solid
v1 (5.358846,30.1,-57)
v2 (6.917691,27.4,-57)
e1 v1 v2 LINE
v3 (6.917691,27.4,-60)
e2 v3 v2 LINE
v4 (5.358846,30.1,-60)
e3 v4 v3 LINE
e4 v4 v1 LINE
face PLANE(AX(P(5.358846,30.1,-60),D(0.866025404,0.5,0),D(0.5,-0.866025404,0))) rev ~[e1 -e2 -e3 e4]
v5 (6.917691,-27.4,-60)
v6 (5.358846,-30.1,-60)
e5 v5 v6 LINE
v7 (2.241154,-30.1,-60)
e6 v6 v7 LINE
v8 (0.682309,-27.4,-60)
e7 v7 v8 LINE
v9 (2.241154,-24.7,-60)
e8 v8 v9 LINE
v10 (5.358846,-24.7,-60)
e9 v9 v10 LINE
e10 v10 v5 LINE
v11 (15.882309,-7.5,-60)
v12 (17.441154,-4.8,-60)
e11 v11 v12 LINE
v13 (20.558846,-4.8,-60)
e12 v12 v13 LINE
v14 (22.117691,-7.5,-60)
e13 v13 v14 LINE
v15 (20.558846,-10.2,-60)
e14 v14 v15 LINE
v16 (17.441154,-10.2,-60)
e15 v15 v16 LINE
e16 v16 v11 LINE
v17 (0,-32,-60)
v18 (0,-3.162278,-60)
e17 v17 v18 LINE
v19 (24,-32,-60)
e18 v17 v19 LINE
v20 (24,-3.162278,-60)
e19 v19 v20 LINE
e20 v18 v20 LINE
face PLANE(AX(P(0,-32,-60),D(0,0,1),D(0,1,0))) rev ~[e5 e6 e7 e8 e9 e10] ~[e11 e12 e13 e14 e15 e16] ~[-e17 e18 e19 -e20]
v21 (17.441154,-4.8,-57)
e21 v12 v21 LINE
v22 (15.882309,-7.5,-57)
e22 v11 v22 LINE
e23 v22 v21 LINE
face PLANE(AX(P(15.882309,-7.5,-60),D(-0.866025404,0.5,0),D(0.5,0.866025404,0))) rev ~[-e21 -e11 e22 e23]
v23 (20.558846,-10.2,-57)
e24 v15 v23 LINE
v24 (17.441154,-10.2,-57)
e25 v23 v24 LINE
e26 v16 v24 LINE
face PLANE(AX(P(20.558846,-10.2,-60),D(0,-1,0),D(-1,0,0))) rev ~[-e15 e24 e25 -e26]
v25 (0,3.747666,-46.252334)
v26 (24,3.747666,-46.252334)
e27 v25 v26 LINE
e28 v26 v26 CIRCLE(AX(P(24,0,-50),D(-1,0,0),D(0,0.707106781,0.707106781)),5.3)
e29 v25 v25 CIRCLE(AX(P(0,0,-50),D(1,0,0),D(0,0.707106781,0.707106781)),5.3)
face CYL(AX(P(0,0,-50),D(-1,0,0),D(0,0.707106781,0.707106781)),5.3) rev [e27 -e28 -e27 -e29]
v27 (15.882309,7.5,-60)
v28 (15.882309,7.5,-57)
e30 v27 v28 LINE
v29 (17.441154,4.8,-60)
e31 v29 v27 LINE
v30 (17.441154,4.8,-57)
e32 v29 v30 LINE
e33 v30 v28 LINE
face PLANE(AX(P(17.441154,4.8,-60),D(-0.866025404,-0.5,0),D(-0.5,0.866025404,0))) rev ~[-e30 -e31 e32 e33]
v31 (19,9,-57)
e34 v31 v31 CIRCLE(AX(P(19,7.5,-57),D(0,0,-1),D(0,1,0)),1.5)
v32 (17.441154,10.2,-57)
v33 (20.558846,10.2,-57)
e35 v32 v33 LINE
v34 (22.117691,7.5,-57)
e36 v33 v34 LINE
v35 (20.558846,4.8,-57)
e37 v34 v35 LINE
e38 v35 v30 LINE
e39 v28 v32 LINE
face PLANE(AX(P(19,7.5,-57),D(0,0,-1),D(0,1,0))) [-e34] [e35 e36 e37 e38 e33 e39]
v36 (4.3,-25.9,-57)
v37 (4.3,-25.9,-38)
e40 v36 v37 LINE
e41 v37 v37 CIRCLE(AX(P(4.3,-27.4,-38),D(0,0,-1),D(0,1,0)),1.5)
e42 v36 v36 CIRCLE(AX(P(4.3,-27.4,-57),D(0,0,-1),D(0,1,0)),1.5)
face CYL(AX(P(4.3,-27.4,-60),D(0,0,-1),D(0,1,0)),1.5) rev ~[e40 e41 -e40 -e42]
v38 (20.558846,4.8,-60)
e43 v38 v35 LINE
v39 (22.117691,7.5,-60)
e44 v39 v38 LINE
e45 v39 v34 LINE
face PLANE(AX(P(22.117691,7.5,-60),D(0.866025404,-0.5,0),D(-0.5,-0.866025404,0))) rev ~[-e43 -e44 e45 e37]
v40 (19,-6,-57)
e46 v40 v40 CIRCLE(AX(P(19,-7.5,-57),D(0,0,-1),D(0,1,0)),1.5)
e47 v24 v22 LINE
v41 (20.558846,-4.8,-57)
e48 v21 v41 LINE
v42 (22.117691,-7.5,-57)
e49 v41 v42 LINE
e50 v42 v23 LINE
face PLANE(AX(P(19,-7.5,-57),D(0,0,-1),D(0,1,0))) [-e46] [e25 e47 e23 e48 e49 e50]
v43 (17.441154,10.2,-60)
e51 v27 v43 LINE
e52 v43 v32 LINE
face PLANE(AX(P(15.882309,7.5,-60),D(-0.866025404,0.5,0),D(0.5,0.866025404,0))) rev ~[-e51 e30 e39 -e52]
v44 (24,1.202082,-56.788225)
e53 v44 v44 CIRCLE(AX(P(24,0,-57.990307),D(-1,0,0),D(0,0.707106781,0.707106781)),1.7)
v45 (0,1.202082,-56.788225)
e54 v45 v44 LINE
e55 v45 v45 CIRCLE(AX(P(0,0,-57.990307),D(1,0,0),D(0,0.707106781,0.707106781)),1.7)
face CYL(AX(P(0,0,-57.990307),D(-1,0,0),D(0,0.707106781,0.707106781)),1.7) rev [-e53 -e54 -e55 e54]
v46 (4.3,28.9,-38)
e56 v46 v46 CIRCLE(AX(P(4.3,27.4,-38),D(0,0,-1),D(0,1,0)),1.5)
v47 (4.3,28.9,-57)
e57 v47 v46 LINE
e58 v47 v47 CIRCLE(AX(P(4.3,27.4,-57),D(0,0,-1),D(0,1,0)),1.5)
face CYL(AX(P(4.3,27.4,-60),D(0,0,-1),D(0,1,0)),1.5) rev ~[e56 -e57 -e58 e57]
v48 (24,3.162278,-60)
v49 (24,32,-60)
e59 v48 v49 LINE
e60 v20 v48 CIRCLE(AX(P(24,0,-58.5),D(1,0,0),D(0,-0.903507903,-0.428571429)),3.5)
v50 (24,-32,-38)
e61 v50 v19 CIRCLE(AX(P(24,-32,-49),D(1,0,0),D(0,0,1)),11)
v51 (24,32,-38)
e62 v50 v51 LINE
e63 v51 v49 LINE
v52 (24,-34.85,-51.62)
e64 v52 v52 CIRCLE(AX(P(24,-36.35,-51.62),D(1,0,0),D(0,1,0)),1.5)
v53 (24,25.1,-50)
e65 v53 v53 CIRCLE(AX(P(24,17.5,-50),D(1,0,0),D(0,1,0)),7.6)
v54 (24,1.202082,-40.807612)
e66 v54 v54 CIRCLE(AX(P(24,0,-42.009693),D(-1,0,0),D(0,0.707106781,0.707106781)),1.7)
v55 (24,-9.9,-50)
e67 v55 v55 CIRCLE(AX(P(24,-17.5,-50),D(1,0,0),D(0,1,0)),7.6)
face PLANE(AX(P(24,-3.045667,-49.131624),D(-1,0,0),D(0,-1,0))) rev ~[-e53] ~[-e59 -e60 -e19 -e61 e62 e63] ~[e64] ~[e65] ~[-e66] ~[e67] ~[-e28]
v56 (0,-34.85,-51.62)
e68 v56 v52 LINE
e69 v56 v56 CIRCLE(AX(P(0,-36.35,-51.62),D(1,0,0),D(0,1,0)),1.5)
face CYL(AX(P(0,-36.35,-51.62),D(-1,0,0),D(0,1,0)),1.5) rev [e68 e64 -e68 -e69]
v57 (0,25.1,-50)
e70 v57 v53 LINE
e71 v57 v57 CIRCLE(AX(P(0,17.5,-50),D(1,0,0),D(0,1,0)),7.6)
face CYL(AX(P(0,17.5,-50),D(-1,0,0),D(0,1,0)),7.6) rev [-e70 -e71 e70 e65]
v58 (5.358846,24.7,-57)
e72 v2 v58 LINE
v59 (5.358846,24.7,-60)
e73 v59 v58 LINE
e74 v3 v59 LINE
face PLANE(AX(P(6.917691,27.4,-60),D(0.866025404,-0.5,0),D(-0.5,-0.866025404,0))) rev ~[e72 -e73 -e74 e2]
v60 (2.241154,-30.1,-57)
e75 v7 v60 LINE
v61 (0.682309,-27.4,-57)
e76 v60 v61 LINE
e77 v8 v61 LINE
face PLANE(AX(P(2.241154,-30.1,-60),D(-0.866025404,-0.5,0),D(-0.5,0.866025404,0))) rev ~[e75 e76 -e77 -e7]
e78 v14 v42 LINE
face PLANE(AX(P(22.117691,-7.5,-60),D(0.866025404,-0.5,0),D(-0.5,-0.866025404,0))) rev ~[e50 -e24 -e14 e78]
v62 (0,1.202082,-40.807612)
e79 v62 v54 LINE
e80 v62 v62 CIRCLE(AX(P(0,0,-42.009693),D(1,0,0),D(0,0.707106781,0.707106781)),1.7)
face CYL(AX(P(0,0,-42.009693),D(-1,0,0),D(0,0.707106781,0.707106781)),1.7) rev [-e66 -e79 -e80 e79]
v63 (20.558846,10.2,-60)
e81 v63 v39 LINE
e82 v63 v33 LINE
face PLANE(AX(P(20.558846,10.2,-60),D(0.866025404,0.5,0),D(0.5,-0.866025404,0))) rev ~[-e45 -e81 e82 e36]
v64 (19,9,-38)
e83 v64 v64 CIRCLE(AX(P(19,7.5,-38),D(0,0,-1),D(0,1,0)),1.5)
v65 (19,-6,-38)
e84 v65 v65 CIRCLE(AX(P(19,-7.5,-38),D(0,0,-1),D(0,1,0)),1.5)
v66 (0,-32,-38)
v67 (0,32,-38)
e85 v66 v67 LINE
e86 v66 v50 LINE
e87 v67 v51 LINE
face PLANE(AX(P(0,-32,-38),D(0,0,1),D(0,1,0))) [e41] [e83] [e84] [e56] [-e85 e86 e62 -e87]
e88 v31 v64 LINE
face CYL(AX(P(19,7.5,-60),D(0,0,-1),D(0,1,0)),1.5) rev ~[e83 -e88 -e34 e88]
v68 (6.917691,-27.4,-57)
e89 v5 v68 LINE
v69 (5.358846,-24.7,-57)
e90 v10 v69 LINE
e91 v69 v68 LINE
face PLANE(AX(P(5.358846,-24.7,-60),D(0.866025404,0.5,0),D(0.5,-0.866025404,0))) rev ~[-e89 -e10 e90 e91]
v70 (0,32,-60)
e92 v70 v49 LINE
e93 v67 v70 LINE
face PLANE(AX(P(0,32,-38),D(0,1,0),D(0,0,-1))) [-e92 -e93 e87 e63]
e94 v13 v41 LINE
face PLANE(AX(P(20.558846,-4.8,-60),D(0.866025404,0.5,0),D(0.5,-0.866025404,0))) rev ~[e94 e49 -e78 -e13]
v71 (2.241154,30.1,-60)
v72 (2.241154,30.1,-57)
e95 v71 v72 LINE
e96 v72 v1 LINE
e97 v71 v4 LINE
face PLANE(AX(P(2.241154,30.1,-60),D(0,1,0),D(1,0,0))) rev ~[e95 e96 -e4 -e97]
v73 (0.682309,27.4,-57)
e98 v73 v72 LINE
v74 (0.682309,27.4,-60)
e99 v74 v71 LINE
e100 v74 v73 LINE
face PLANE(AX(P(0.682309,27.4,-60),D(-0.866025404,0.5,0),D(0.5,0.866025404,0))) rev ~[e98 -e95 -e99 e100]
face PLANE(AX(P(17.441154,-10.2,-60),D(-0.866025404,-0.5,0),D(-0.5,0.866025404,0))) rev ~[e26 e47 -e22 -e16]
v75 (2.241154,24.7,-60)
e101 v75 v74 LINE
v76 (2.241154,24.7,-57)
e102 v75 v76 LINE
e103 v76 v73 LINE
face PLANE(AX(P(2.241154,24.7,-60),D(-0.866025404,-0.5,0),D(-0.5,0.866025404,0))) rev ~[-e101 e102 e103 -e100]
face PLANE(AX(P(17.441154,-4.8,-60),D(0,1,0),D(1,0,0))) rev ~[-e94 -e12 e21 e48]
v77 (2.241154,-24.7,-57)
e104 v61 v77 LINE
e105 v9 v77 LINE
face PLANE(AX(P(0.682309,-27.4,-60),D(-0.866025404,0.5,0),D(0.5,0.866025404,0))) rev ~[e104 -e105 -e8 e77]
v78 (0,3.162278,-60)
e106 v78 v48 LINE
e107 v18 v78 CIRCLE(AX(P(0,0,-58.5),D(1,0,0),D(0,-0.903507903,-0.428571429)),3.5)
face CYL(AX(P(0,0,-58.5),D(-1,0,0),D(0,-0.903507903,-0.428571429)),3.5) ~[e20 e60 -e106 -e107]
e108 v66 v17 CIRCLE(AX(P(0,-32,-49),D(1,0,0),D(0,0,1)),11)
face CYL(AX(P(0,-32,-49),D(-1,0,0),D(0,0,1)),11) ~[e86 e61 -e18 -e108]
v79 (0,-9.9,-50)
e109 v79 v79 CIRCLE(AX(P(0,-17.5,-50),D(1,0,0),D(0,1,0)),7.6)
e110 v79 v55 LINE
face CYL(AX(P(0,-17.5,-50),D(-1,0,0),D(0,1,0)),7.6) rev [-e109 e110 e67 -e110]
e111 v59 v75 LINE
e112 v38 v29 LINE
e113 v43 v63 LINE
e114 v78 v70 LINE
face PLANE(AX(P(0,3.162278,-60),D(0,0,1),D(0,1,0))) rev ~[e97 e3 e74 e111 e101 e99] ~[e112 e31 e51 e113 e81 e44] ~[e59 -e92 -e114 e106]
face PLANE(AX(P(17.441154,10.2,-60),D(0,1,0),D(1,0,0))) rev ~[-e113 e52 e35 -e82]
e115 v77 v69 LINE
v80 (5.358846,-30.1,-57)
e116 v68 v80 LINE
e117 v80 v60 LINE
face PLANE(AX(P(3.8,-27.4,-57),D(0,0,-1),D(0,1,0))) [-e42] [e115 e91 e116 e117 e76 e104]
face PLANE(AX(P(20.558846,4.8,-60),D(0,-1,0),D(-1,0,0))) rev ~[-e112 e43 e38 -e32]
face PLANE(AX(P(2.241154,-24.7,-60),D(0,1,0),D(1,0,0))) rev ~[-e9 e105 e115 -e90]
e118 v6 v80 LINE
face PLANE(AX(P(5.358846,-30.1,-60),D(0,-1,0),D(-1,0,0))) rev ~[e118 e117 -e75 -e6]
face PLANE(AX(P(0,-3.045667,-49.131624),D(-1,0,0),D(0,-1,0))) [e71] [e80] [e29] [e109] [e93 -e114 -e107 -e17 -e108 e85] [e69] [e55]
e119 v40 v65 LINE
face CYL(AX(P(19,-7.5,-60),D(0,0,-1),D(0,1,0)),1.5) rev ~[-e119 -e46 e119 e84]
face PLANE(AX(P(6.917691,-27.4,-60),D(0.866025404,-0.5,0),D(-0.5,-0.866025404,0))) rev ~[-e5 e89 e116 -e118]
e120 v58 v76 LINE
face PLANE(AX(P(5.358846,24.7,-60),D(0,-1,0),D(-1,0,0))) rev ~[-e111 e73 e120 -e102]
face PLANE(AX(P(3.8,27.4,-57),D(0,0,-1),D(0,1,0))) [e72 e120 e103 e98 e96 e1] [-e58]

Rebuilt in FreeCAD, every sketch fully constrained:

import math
import FreeCAD as App
import Part
import Sketcher
from FreeCAD import Vector
Q = App.Units.Quantity

doc = App.newDocument("Part")
body = doc.addObject("PartDesign::Body", "Body")

sketch1 = body.newObject("Sketcher::SketchObject", "Sketch")
sketch1.AttachmentSupport = (doc.getObject("YZ_Plane"), [""])
sketch1.MapMode = "FlatFace"
sketch1.addGeometry(Part.LineSegment(Vector(32, 12, 0), Vector(-32, 12, 0)), False)
sketch1.addGeometry(Part.ArcOfCircle(Part.Circle(Vector(-32, 1, 0), Vector(0, 0, 1), 11), math.radians(90), math.radians(270)), False)
sketch1.addGeometry(Part.LineSegment(Vector(-32, -10, 0), Vector(-3.162278, -10, 0)), False)
sketch1.addGeometry(Part.ArcOfCircle(Part.Circle(Vector(0, -8.5, 0), Vector(0, 0, 1), 3.5), math.radians(-154.623066), math.radians(-25.376934)), False)
sketch1.addGeometry(Part.LineSegment(Vector(3.162278, -10, 0), Vector(32, -10, 0)), False)
sketch1.addGeometry(Part.LineSegment(Vector(32, -10, 0), Vector(32, 12, 0)), False)
sketch1.addGeometry(Part.Circle(Vector(17.5, 0, 0), Vector(0, 0, 1), 7.6), False)
sketch1.addGeometry(Part.Circle(Vector(-17.5, 0, 0), Vector(0, 0, 1), 7.6), False)
sketch1.addGeometry(Part.Circle(Vector(-36.35, -1.62, 0), Vector(0, 0, 1), 1.5), False)
sketch1.addConstraint(Sketcher.Constraint("Tangent", 0, 2, 1, 1))
sketch1.addConstraint(Sketcher.Constraint("Tangent", 1, 2, 2, 1))
sketch1.addConstraint(Sketcher.Constraint("Coincident", 2, 2, 3, 1))
sketch1.addConstraint(Sketcher.Constraint("Coincident", 3, 2, 4, 1))
sketch1.addConstraint(Sketcher.Constraint("Coincident", 4, 2, 5, 1))
sketch1.addConstraint(Sketcher.Constraint("Coincident", 5, 2, 0, 1))
sketch1.addConstraint(Sketcher.Constraint("Horizontal", 0))
sketch1.addConstraint(Sketcher.Constraint("Horizontal", 2))
sketch1.addConstraint(Sketcher.Constraint("Horizontal", 4))
sketch1.addConstraint(Sketcher.Constraint("Vertical", 5))
sketch1.addConstraint(Sketcher.Constraint("Equal", 6, 7))
sketch1.addConstraint(Sketcher.Constraint("Symmetric", 6, 3, 7, 3, -1, 1))
sketch1.addConstraint(Sketcher.Constraint("Symmetric", 2, 2, 3, 2, -2))
sketch1.addConstraint(Sketcher.Constraint("PointOnObject", 6, 3, -1))
sketch1.addConstraint(Sketcher.Constraint("Equal", 2, 4))
sketch1.addConstraint(Sketcher.Constraint("Diameter", 8, Q("3 mm")))
sketch1.addConstraint(Sketcher.Constraint("Radius", 1, Q("11 mm")))
sketch1.addConstraint(Sketcher.Constraint("Diameter", 6, Q("15.2 mm")))
sketch1.addConstraint(Sketcher.Constraint("Radius", 3, Q("3.5 mm")))
sketch1.addConstraint(Sketcher.Constraint("DistanceX", 0, 2, 0, 1, Q("64 mm")))
sketch1.addConstraint(Sketcher.Constraint("DistanceY", -1, 1, 1, 3, Q("1 mm")))
sketch1.addConstraint(Sketcher.Constraint("DistanceX", 7, 3, 6, 3, Q("35 mm")))
sketch1.addConstraint(Sketcher.Constraint("DistanceY", 3, 3, -1, 1, Q("8.5 mm")))
sketch1.addConstraint(Sketcher.Constraint("DistanceX", 8, 3, -1, 1, Q("36.35 mm")))
sketch1.addConstraint(Sketcher.Constraint("DistanceY", 8, 3, -1, 1, Q("1.62 mm")))
pad1 = body.newObject("PartDesign::Pad", "Pad")
pad1.Profile = sketch1
pad1.Length = 24

sketch2 = body.newObject("Sketcher::SketchObject", "Sketch001")
sketch2.AttachmentSupport = (doc.getObject("YZ_Plane"), [""])
sketch2.MapMode = "FlatFace"
sketch2.addGeometry(Part.Circle(Vector(0, 0, 0), Vector(0, 0, 1), 5.3), False)
sketch2.addGeometry(Part.Circle(Vector(0, 7.990307, 0), Vector(0, 0, 1), 1.7), False)
sketch2.addGeometry(Part.Circle(Vector(0, -7.990307, 0), Vector(0, 0, 1), 1.7), False)
sketch2.addConstraint(Sketcher.Constraint("Coincident", 0, 3, -1, 1))
sketch2.addConstraint(Sketcher.Constraint("Equal", 1, 2))
sketch2.addConstraint(Sketcher.Constraint("Symmetric", 1, 3, 2, 3, -1, 1))
sketch2.addConstraint(Sketcher.Constraint("PointOnObject", 1, 3, -2))
sketch2.addConstraint(Sketcher.Constraint("Diameter", 0, Q("10.6 mm")))
sketch2.addConstraint(Sketcher.Constraint("Diameter", 1, Q("3.4 mm")))
sketch2.addConstraint(Sketcher.Constraint("DistanceY", -1, 1, 1, 3, Q("7.990307 mm")))
pocket1 = body.newObject("PartDesign::Pocket", "Pocket")
pocket1.Profile = sketch2
pocket1.Type = "ThroughAll"
pocket1.Reversed = True

sketch3 = body.newObject("Sketcher::SketchObject", "Sketch002")
sketch3.AttachmentSupport = (doc.getObject("XY_Plane"), [""])
sketch3.MapMode = "FlatFace"
sketch3.AttachmentOffset = App.Placement(Vector(0, 0, -10), App.Rotation())
sketch3.addGeometry(Part.Circle(Vector(19, -7.5, 0), Vector(0, 0, 1), 1.5), False)
sketch3.addGeometry(Part.Circle(Vector(19, 7.5, 0), Vector(0, 0, 1), 1.5), False)
sketch3.addGeometry(Part.Circle(Vector(4.3, 27.4, 0), Vector(0, 0, 1), 1.5), False)
sketch3.addGeometry(Part.Circle(Vector(4.3, -27.4, 0), Vector(0, 0, 1), 1.5), False)
sketch3.addConstraint(Sketcher.Constraint("Equal", 0, 1))
sketch3.addConstraint(Sketcher.Constraint("Equal", 1, 2))
sketch3.addConstraint(Sketcher.Constraint("Equal", 2, 3))
sketch3.addConstraint(Sketcher.Constraint("Symmetric", 0, 3, 1, 3, -1))
sketch3.addConstraint(Sketcher.Constraint("Symmetric", 2, 3, 3, 3, -1))
sketch3.addConstraint(Sketcher.Constraint("Diameter", 0, Q("3 mm")))
sketch3.addConstraint(Sketcher.Constraint("DistanceX", -1, 1, 0, 3, Q("19 mm")))
sketch3.addConstraint(Sketcher.Constraint("DistanceY", 0, 3, 1, 3, Q("15 mm")))
sketch3.addConstraint(Sketcher.Constraint("DistanceX", -1, 1, 2, 3, Q("4.3 mm")))
sketch3.addConstraint(Sketcher.Constraint("DistanceY", -1, 1, 2, 3, Q("27.4 mm")))
pocket2 = body.newObject("PartDesign::Pocket", "Pocket001")
pocket2.Profile = sketch3
pocket2.Type = "ThroughAll"
pocket2.Midplane = True

sketch4 = body.newObject("Sketcher::SketchObject", "Sketch003")
sketch4.AttachmentSupport = (doc.getObject("XY_Plane"), [""])
sketch4.MapMode = "FlatFace"
sketch4.AttachmentOffset = App.Placement(Vector(0, 0, -10), App.Rotation())
sketch4.addGeometry(Part.LineSegment(Vector(5.358846, -24.7, 0), Vector(6.917691, -27.4, 0)), False)
sketch4.addGeometry(Part.LineSegment(Vector(6.917691, -27.4, 0), Vector(5.358846, -30.1, 0)), False)
sketch4.addGeometry(Part.LineSegment(Vector(5.358846, -30.1, 0), Vector(2.241154, -30.1, 0)), False)
sketch4.addGeometry(Part.LineSegment(Vector(2.241154, -30.1, 0), Vector(0.682309, -27.4, 0)), False)
sketch4.addGeometry(Part.LineSegment(Vector(0.682309, -27.4, 0), Vector(2.241154, -24.7, 0)), False)
sketch4.addGeometry(Part.LineSegment(Vector(2.241154, -24.7, 0), Vector(5.358846, -24.7, 0)), False)
sketch4.addGeometry(Part.LineSegment(Vector(5.358846, 24.7, 0), Vector(2.241154, 24.7, 0)), False)
sketch4.addGeometry(Part.LineSegment(Vector(2.241154, 24.7, 0), Vector(0.682309, 27.4, 0)), False)
sketch4.addGeometry(Part.LineSegment(Vector(0.682309, 27.4, 0), Vector(2.241154, 30.1, 0)), False)
sketch4.addGeometry(Part.LineSegment(Vector(2.241154, 30.1, 0), Vector(5.358846, 30.1, 0)), False)
sketch4.addGeometry(Part.LineSegment(Vector(5.358846, 30.1, 0), Vector(6.917691, 27.4, 0)), False)
sketch4.addGeometry(Part.LineSegment(Vector(6.917691, 27.4, 0), Vector(5.358846, 24.7, 0)), False)
sketch4.addGeometry(Part.LineSegment(Vector(20.558846, 10.2, 0), Vector(22.117691, 7.5, 0)), False)
sketch4.addGeometry(Part.LineSegment(Vector(22.117691, 7.5, 0), Vector(20.558846, 4.8, 0)), False)
sketch4.addGeometry(Part.LineSegment(Vector(20.558846, 4.8, 0), Vector(17.441154, 4.8, 0)), False)
sketch4.addGeometry(Part.LineSegment(Vector(17.441154, 4.8, 0), Vector(15.882309, 7.5, 0)), False)
sketch4.addGeometry(Part.LineSegment(Vector(15.882309, 7.5, 0), Vector(17.441154, 10.2, 0)), False)
sketch4.addGeometry(Part.LineSegment(Vector(17.441154, 10.2, 0), Vector(20.558846, 10.2, 0)), False)
sketch4.addGeometry(Part.LineSegment(Vector(22.117691, -7.5, 0), Vector(20.558846, -10.2, 0)), False)
sketch4.addGeometry(Part.LineSegment(Vector(20.558846, -10.2, 0), Vector(17.441154, -10.2, 0)), False)
sketch4.addGeometry(Part.LineSegment(Vector(17.441154, -10.2, 0), Vector(15.882309, -7.5, 0)), False)
sketch4.addGeometry(Part.LineSegment(Vector(15.882309, -7.5, 0), Vector(17.441154, -4.8, 0)), False)
sketch4.addGeometry(Part.LineSegment(Vector(17.441154, -4.8, 0), Vector(20.558846, -4.8, 0)), False)
sketch4.addGeometry(Part.LineSegment(Vector(20.558846, -4.8, 0), Vector(22.117691, -7.5, 0)), False)
sketch4.addConstraint(Sketcher.Constraint("Coincident", 0, 2, 1, 1))
sketch4.addConstraint(Sketcher.Constraint("Coincident", 1, 2, 2, 1))
sketch4.addConstraint(Sketcher.Constraint("Coincident", 2, 2, 3, 1))
sketch4.addConstraint(Sketcher.Constraint("Coincident", 3, 2, 4, 1))
sketch4.addConstraint(Sketcher.Constraint("Coincident", 4, 2, 5, 1))
sketch4.addConstraint(Sketcher.Constraint("Coincident", 5, 2, 0, 1))
sketch4.addConstraint(Sketcher.Constraint("Coincident", 6, 2, 7, 1))
sketch4.addConstraint(Sketcher.Constraint("Coincident", 7, 2, 8, 1))
sketch4.addConstraint(Sketcher.Constraint("Coincident", 8, 2, 9, 1))
sketch4.addConstraint(Sketcher.Constraint("Coincident", 9, 2, 10, 1))
sketch4.addConstraint(Sketcher.Constraint("Coincident", 10, 2, 11, 1))
sketch4.addConstraint(Sketcher.Constraint("Coincident", 11, 2, 6, 1))
sketch4.addConstraint(Sketcher.Constraint("Coincident", 12, 2, 13, 1))
sketch4.addConstraint(Sketcher.Constraint("Coincident", 13, 2, 14, 1))
sketch4.addConstraint(Sketcher.Constraint("Coincident", 14, 2, 15, 1))
sketch4.addConstraint(Sketcher.Constraint("Coincident", 15, 2, 16, 1))
sketch4.addConstraint(Sketcher.Constraint("Coincident", 16, 2, 17, 1))
sketch4.addConstraint(Sketcher.Constraint("Coincident", 17, 2, 12, 1))
sketch4.addConstraint(Sketcher.Constraint("Coincident", 18, 2, 19, 1))
sketch4.addConstraint(Sketcher.Constraint("Coincident", 19, 2, 20, 1))
sketch4.addConstraint(Sketcher.Constraint("Coincident", 20, 2, 21, 1))
sketch4.addConstraint(Sketcher.Constraint("Coincident", 21, 2, 22, 1))
sketch4.addConstraint(Sketcher.Constraint("Coincident", 22, 2, 23, 1))
sketch4.addConstraint(Sketcher.Constraint("Coincident", 23, 2, 18, 1))
sketch4.addConstraint(Sketcher.Constraint("Horizontal", 2))
sketch4.addConstraint(Sketcher.Constraint("Horizontal", 5))
sketch4.addConstraint(Sketcher.Constraint("Horizontal", 6))
sketch4.addConstraint(Sketcher.Constraint("Horizontal", 9))
sketch4.addConstraint(Sketcher.Constraint("Horizontal", 14))
sketch4.addConstraint(Sketcher.Constraint("Horizontal", 17))
sketch4.addConstraint(Sketcher.Constraint("Horizontal", 19))
sketch4.addConstraint(Sketcher.Constraint("Horizontal", 22))
sketch4.addConstraint(Sketcher.Constraint("Symmetric", 4, 2, 6, 2, -1))
sketch4.addConstraint(Sketcher.Constraint("Symmetric", 3, 2, 7, 2, -1))
sketch4.addConstraint(Sketcher.Constraint("Symmetric", 2, 2, 8, 2, -1))
sketch4.addConstraint(Sketcher.Constraint("Symmetric", 0, 2, 10, 2, -1))
sketch4.addConstraint(Sketcher.Constraint("Symmetric", 17, 2, 18, 2, -1))
sketch4.addConstraint(Sketcher.Constraint("Symmetric", 15, 2, 20, 2, -1))
sketch4.addConstraint(Sketcher.Constraint("Symmetric", 14, 2, 21, 2, -1))
sketch4.addConstraint(Sketcher.Constraint("Symmetric", 12, 2, 23, 2, -1))
sketch4.addConstraint(Sketcher.Constraint("Parallel", 0, 3))
sketch4.addConstraint(Sketcher.Constraint("Parallel", 1, 4))
sketch4.addConstraint(Sketcher.Constraint("Parallel", 3, 7))
sketch4.addConstraint(Sketcher.Constraint("Parallel", 7, 10))
sketch4.addConstraint(Sketcher.Constraint("Parallel", 8, 11))
sketch4.addConstraint(Sketcher.Constraint("Parallel", 10, 12))
sketch4.addConstraint(Sketcher.Constraint("Parallel", 11, 13))
sketch4.addConstraint(Sketcher.Constraint("Parallel", 12, 15))
sketch4.addConstraint(Sketcher.Constraint("Parallel", 13, 16))
sketch4.addConstraint(Sketcher.Constraint("Parallel", 15, 20))
sketch4.addConstraint(Sketcher.Constraint("Parallel", 20, 23))
sketch4.addConstraint(Sketcher.Constraint("Horizontal", 0, 2, 3, 2))
sketch4.addConstraint(Sketcher.Constraint("Horizontal", 12, 2, 15, 2))
sketch4.addConstraint(Sketcher.Constraint("Vertical", 2, 2, 4, 2))
sketch4.addConstraint(Sketcher.Constraint("Vertical", 14, 2, 16, 2))
sketch4.addConstraint(Sketcher.Constraint("Equal", 9, 14))
sketch4.addConstraint(Sketcher.Constraint("Equal", 11, 12))
sketch4.addConstraint(Sketcher.Constraint("Angle", 0, Q("-60 deg")))
sketch4.addConstraint(Sketcher.Constraint("DistanceY", 18, 2, 13, 2, Q("15 mm")))
sketch4.addConstraint(Sketcher.Constraint("DistanceY", 0, 2, -1, 1, Q("27.4 mm")))
sketch4.addConstraint(Sketcher.Constraint("DistanceY", 1, 2, -1, 1, Q("30.1 mm")))
sketch4.addConstraint(Sketcher.Constraint("DistanceX", 10, 2, 12, 2, Q("15.2 mm")))
sketch4.addConstraint(Sketcher.Constraint("DistanceX", 2, 2, 2, 1, Q("3.117691 mm")))
sketch4.addConstraint(Sketcher.Constraint("DistanceX", -1, 1, 0, 2, Q("6.917691 mm")))
pocket3 = body.newObject("PartDesign::Pocket", "Pocket002")
pocket3.Profile = sketch4
pocket3.Length = 3
pocket3.Reversed = True
body2 = doc.addObject("PartDesign::Body", "Body001")
doc.recompute()

body.Placement = App.Placement(Vector(0, 0, -50), App.Rotation(Vector(0, 0, 1), 0))
boolean = body2.newObject("PartDesign::Boolean", "Boolean")
boolean.Type = "Fuse"
boolean.addObjects([body])

doc.recompute()
